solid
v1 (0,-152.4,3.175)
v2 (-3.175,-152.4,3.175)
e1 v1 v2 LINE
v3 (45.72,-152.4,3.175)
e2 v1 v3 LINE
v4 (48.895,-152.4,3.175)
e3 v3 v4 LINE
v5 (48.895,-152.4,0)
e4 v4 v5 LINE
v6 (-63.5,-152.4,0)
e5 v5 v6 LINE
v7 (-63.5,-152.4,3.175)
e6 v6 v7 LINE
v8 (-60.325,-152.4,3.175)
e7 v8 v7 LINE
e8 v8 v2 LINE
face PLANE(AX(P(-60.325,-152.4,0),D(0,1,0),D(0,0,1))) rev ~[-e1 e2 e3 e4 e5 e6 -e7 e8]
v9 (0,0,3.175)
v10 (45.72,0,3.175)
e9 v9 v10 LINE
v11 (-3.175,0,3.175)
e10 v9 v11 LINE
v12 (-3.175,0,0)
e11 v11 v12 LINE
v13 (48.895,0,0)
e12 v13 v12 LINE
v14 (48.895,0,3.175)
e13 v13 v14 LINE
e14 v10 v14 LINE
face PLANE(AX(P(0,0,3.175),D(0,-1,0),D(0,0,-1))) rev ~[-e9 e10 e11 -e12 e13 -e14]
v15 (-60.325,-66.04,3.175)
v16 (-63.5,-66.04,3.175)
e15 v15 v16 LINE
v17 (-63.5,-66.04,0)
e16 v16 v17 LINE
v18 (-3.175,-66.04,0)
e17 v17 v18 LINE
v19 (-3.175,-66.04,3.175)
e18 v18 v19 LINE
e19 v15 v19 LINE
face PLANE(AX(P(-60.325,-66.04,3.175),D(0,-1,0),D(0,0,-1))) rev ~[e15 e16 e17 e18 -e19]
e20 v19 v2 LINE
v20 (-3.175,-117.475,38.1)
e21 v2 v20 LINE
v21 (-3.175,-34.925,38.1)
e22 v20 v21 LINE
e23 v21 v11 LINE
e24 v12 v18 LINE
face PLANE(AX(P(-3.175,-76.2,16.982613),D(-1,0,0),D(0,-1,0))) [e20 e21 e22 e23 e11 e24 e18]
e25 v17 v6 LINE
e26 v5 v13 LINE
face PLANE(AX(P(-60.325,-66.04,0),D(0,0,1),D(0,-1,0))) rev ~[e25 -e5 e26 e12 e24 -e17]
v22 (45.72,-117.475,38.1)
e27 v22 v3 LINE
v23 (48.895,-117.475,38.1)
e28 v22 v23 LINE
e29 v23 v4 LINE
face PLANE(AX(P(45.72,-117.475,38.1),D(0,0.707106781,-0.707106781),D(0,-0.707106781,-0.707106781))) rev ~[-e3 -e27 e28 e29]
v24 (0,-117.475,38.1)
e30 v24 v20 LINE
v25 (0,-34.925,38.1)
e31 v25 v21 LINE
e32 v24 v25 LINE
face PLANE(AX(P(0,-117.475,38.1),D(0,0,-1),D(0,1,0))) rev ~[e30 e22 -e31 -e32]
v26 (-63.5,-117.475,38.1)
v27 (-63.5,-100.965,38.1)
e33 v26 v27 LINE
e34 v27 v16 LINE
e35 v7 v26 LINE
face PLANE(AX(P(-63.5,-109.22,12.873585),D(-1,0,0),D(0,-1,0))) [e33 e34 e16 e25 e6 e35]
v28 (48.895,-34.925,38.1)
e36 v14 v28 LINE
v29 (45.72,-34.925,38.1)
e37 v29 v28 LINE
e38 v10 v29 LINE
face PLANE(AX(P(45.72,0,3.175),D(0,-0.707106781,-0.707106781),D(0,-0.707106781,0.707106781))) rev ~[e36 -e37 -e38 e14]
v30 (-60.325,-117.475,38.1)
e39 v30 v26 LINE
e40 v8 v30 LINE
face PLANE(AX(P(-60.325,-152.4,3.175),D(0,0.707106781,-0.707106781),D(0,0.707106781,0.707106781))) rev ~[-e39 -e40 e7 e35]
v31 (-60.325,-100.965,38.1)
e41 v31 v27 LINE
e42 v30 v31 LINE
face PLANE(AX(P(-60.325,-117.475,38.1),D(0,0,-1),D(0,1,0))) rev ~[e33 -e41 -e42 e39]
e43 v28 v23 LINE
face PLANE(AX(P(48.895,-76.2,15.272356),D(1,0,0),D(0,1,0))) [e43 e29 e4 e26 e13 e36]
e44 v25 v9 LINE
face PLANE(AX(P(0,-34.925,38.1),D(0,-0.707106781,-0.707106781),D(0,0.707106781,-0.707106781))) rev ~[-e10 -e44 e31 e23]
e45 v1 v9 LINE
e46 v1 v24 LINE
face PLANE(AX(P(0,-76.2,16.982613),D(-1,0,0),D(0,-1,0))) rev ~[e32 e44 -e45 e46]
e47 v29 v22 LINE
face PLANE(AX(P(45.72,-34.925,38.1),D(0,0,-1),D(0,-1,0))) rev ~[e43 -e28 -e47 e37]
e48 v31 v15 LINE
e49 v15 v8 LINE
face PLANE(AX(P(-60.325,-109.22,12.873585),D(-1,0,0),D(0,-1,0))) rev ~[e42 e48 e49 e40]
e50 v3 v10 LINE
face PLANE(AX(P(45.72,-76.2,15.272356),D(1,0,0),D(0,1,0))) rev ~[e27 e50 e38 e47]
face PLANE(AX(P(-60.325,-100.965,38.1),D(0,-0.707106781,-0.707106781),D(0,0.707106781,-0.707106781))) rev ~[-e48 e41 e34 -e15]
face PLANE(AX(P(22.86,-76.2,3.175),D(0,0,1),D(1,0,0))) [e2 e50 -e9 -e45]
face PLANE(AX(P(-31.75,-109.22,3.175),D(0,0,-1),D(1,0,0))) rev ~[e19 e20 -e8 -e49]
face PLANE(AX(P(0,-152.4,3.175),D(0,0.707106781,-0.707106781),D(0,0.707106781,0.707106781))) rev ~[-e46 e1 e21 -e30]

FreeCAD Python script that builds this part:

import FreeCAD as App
import Part
import Sketcher
Q = App.Units.Quantity

doc = App.newDocument("Part")
body = doc.addObject("PartDesign::Body", "Body")

# Sketch on XY plane
sketch1 = body.newObject("Sketcher::SketchObject", "Sketch")
sketch1.AttachmentSupport = (doc.getObject("XY_Plane"), [""])
sketch1.MapMode = "FlatFace"
sketch1.addGeometry(Part.LineSegment(App.Vector(0, 0, 0), App.Vector(0, -152, 0)), False)
sketch1.addGeometry(Part.LineSegment(App.Vector(0, -152, 0), App.Vector(46, -152, 0)), False)
sketch1.addGeometry(Part.LineSegment(App.Vector(46, -152, 0), App.Vector(46, 0, 0)), False)
sketch1.addGeometry(Part.LineSegment(App.Vector(46, 0, 0), App.Vector(0, 0, 0)), False)
sketch1.addConstraint(Sketcher.Constraint("Coincident", 0, 2, 1, 1))
sketch1.addConstraint(Sketcher.Constraint("Coincident", 1, 2, 2, 1))
sketch1.addConstraint(Sketcher.Constraint("Coincident", 2, 2, 3, 1))
sketch1.addConstraint(Sketcher.Constraint("Coincident", 3, 2, 0, 1))
sketch1.addConstraint(Sketcher.Constraint("Vertical", 0))
sketch1.addConstraint(Sketcher.Constraint("Horizontal", 1))
sketch1.addConstraint(Sketcher.Constraint("Vertical", 2))
sketch1.addConstraint(Sketcher.Constraint("Horizontal", 3))
sketch1.addConstraint(Sketcher.Constraint("Coincident", 3, 2, -1, 1))
sketch1.addConstraint(Sketcher.Constraint("DistanceY", 0, 2, 0, 1, Q("6 in")))
sketch1.addConstraint(Sketcher.Constraint("DistanceX", 1, 1, 1, 2, Q("1.8 in")))
pad1 = body.newObject("PartDesign::Pad", "Pad")
pad1.Profile = sketch1
pad1.Length = Q("0.125 in")

# Sketch on YZ plane
sketch2 = body.newObject("Sketcher::SketchObject", "Sketch001")
sketch2.AttachmentSupport = (doc.getObject("YZ_Plane"), [""])
sketch2.MapMode = "FlatFace"
sketch2.AttachmentOffset = App.Placement(App.Vector(0, 0, 1.8 * 25.4), App.Rotation())
sketch2.addGeometry(Part.LineSegment(App.Vector(-152.4, 3.2, 0), App.Vector(-152.4, 0, 0)), False)
sketch2.addGeometry(Part.LineSegment(App.Vector(-152.4, 0, 0), App.Vector(0, 0, 0)), False)
sketch2.addGeometry(Part.LineSegment(App.Vector(0, 0, 0), App.Vector(0, 3.2, 0)), False)
sketch2.addGeometry(Part.LineSegment(App.Vector(0, 3.2, 0), App.Vector(-34.9, 38.1, 0)), False)
sketch2.addGeometry(Part.LineSegment(App.Vector(-34.9, 38.1, 0), App.Vector(-117.5, 38.1, 0)), False)
sketch2.addGeometry(Part.LineSegment(App.Vector(-117.5, 38.1, 0), App.Vector(-152.4, 3.2, 0)), False)
sketch2.addConstraint(Sketcher.Constraint("Coincident", 0, 2, 1, 1))
sketch2.addConstraint(Sketcher.Constraint("Coincident", 1, 2, 2, 1))
sketch2.addConstraint(Sketcher.Constraint("Coincident", 2, 2, 3, 1))
sketch2.addConstraint(Sketcher.Constraint("Coincident", 3, 2, 4, 1))
sketch2.addConstraint(Sketcher.Constraint("Coincident", 4, 2, 5, 1))
sketch2.addConstraint(Sketcher.Constraint("Coincident", 5, 2, 0, 1))
sketch2.addConstraint(Sketcher.Constraint("Vertical", 0))
sketch2.addConstraint(Sketcher.Constraint("Horizontal", 1))
sketch2.addConstraint(Sketcher.Constraint("Vertical", 2))
sketch2.addConstraint(Sketcher.Constraint("Horizontal", 4))
sketch2.addConstraint(Sketcher.Constraint("Coincident", 1, 2, -1, 1))
sketch2.addConstraint(Sketcher.Constraint("Perpendicular", 3, 5))
sketch2.addConstraint(Sketcher.Constraint("Horizontal", 2, 2, 5, 2))
sketch2.addConstraint(Sketcher.Constraint("Equal", 3, 5))
sketch2.addConstraint(Sketcher.Constraint("DistanceX", 1, 1, 1, 2, Q("6 in")))
sketch2.addConstraint(Sketcher.Constraint("DistanceX", 4, 2, 4, 1, Q("3.25 in")))
sketch2.addConstraint(Sketcher.Constraint("DistanceY", -1, 1, 3, 2, Q("1.5 in")))
pad2 = body.newObject("PartDesign::Pad", "Pad001")
pad2.Profile = sketch2
pad2.Length = Q("0.125 in")

# Sketch on YZ plane
sketch3 = body.newObject("Sketcher::SketchObject", "Sketch002")
sketch3.AttachmentSupport = (doc.getObject("YZ_Plane"), [""])
sketch3.MapMode = "FlatFace"
sketch3.addGeometry(Part.LineSegment(App.Vector(-34.9, 38.1, 0), App.Vector(0, 3.2, 0)), False)
sketch3.addGeometry(Part.LineSegment(App.Vector(0, 3.2, 0), App.Vector(0, 0, 0)), False)
sketch3.addGeometry(Part.LineSegment(App.Vector(0, 0, 0), App.Vector(-152.4, 0, 0)), False)
sketch3.addGeometry(Part.LineSegment(App.Vector(-152.4, 0, 0), App.Vector(-152.4, 3.2, 0)), False)
sketch3.addGeometry(Part.LineSegment(App.Vector(-152.4, 3.2, 0), App.Vector(-117.5, 38.1, 0)), False)
sketch3.addGeometry(Part.LineSegment(App.Vector(-117.5, 38.1, 0), App.Vector(-34.9, 38.1, 0)), False)
sketch3.addConstraint(Sketcher.Constraint("Coincident", 0, 2, 1, 1))
sketch3.addConstraint(Sketcher.Constraint("Coincident", 1, 2, 2, 1))
sketch3.addConstraint(Sketcher.Constraint("Coincident", 2, 2, 3, 1))
sketch3.addConstraint(Sketcher.Constraint("Coincident", 3, 2, 4, 1))
sketch3.addConstraint(Sketcher.Constraint("Coincident", 4, 2, 5, 1))
sketch3.addConstraint(Sketcher.Constraint("Coincident", 5, 2, 0, 1))
sketch3.addConstraint(Sketcher.Constraint("Vertical", 1))
sketch3.addConstraint(Sketcher.Constraint("Horizontal", 2))
sketch3.addConstraint(Sketcher.Constraint("Vertical", 3))
sketch3.addConstraint(Sketcher.Constraint("Horizontal", 5))
sketch3.addConstraint(Sketcher.Constraint("Coincident", 1, 2, -1, 1))
sketch3.addConstraint(Sketcher.Constraint("Perpendicular", 0, 4))
sketch3.addConstraint(Sketcher.Constraint("Horizontal", 0, 2, 3, 2))
sketch3.addConstraint(Sketcher.Constraint("Equal", 0, 4))
sketch3.addConstraint(Sketcher.Constraint("DistanceX", 2, 2, 2, 1, Q("6 in")))
sketch3.addConstraint(Sketcher.Constraint("DistanceX", 5, 1, 5, 2, Q("3.25 in")))
sketch3.addConstraint(Sketcher.Constraint("DistanceY", -1, 1, 4, 2, Q("1.5 in")))
pad3 = body.newObject("PartDesign::Pad", "Pad002")
pad3.Profile = sketch3
pad3.Length = Q("0.125 in")
pad3.Reversed = True

# Sketch on XY plane
sketch4 = body.newObject("Sketcher::SketchObject", "Sketch003")
sketch4.AttachmentSupport = (doc.getObject("XY_Plane"), [""])
sketch4.MapMode = "FlatFace"
sketch4.addGeometry(Part.LineSegment(App.Vector(-60, -152, 0), App.Vector(-60, -66, 0)), False)
sketch4.addGeometry(Part.LineSegment(App.Vector(-60, -66, 0), App.Vector(-3, -66, 0)), False)
sketch4.addGeometry(Part.LineSegment(App.Vector(-3, -66, 0), App.Vector(-3, -152, 0)), False)
sketch4.addGeometry(Part.LineSegment(App.Vector(-3, -152, 0), App.Vector(-60, -152, 0)), False)
sketch4.addConstraint(Sketcher.Constraint("Coincident", 0, 2, 1, 1))
sketch4.addConstraint(Sketcher.Constraint("Coincident", 1, 2, 2, 1))
sketch4.addConstraint(Sketcher.Constraint("Coincident", 2, 2, 3, 1))
sketch4.addConstraint(Sketcher.Constraint("Coincident", 3, 2, 0, 1))
sketch4.addConstraint(Sketcher.Constraint("Vertical", 0))
sketch4.addConstraint(Sketcher.Constraint("Horizontal", 1))
sketch4.addConstraint(Sketcher.Constraint("Vertical", 2))
sketch4.addConstraint(Sketcher.Constraint("Horizontal", 3))
sketch4.addConstraint(Sketcher.Constraint("DistanceY", 0, 1, 0, 2, Q("3.4 in")))
sketch4.addConstraint(Sketcher.Constraint("DistanceY", 2, 2, -1, 1, Q("6 in")))
sketch4.addConstraint(Sketcher.Constraint("DistanceX", 1, 1, 1, 2, Q("2.25 in")))
sketch4.addConstraint(Sketcher.Constraint("DistanceX", 0, 2, -1, 1, Q("2.375 in")))
pad4 = body.newObject("PartDesign::Pad", "Pad003")
pad4.Profile = sketch4
pad4.Length = Q("0.125 in")

# Sketch on YZ plane
sketch5 = body.newObject("Sketcher::SketchObject", "Sketch004")
sketch5.AttachmentSupport = (doc.getObject("YZ_Plane"), [""])
sketch5.MapMode = "FlatFace"
sketch5.AttachmentOffset = App.Placement(App.Vector(0, 0, -2.375 * 25.4), App.Rotation())
sketch5.addGeometry(Part.LineSegment(App.Vector(-66, 0, 0), App.Vector(-152.4, 0, 0)), False)
sketch5.addGeometry(Part.LineSegment(App.Vector(-152.4, 0, 0), App.Vector(-152.4, 3.2, 0)), False)
sketch5.addGeometry(Part.LineSegment(App.Vector(-152.4, 3.2, 0), App.Vector(-117.5, 38.1, 0)), False)
sketch5.addGeometry(Part.LineSegment(App.Vector(-117.5, 38.1, 0), App.Vector(-101, 38.1, 0)), False)
sketch5.addGeometry(Part.LineSegment(App.Vector(-101, 38.1, 0), App.Vector(-66, 3.2, 0)), False)
sketch5.addGeometry(Part.LineSegment(App.Vector(-66, 3.2, 0), App.Vector(-66, 0, 0)), False)
sketch5.addConstraint(Sketcher.Constraint("Coincident", 0, 2, 1, 1))
sketch5.addConstraint(Sketcher.Constraint("Coincident", 1, 2, 2, 1))
sketch5.addConstraint(Sketcher.Constraint("Coincident", 2, 2, 3, 1))
sketch5.addConstraint(Sketcher.Constraint("Coincident", 3, 2, 4, 1))
sketch5.addConstraint(Sketcher.Constraint("Coincident", 4, 2, 5, 1))
sketch5.addConstraint(Sketcher.Constraint("Coincident", 5, 2, 0, 1))
sketch5.addConstraint(Sketcher.Constraint("Horizontal", 0))
sketch5.addConstraint(Sketcher.Constraint("Vertical", 1))
sketch5.addConstraint(Sketcher.Constraint("Horizontal", 3))
sketch5.addConstraint(Sketcher.Constraint("Vertical", 5))
sketch5.addConstraint(Sketcher.Constraint("PointOnObject", 0, 2, -1))
sketch5.addConstraint(Sketcher.Constraint("Perpendicular", 2, 4))
sketch5.addConstraint(Sketcher.Constraint("Horizontal", 1, 2, 4, 2))
sketch5.addConstraint(Sketcher.Constraint("Equal", 2, 4))
sketch5.addConstraint(Sketcher.Constraint("DistanceX", 0, 2, 0, 1, Q("3.4 in")))
sketch5.addConstraint(Sketcher.Constraint("DistanceX", 0, 2, -1, 1, Q("6 in")))
sketch5.addConstraint(Sketcher.Constraint("DistanceX", 3, 1, 3, 2, Q("0.65 in")))
sketch5.addConstraint(Sketcher.Constraint("DistanceY", -1, 1, 2, 2, Q("1.5 in")))
pad5 = body.newObject("PartDesign::Pad", "Pad004")
pad5.Profile = sketch5
pad5.Length = Q("0.125 in")
pad5.Reversed = True

doc.recompute()
